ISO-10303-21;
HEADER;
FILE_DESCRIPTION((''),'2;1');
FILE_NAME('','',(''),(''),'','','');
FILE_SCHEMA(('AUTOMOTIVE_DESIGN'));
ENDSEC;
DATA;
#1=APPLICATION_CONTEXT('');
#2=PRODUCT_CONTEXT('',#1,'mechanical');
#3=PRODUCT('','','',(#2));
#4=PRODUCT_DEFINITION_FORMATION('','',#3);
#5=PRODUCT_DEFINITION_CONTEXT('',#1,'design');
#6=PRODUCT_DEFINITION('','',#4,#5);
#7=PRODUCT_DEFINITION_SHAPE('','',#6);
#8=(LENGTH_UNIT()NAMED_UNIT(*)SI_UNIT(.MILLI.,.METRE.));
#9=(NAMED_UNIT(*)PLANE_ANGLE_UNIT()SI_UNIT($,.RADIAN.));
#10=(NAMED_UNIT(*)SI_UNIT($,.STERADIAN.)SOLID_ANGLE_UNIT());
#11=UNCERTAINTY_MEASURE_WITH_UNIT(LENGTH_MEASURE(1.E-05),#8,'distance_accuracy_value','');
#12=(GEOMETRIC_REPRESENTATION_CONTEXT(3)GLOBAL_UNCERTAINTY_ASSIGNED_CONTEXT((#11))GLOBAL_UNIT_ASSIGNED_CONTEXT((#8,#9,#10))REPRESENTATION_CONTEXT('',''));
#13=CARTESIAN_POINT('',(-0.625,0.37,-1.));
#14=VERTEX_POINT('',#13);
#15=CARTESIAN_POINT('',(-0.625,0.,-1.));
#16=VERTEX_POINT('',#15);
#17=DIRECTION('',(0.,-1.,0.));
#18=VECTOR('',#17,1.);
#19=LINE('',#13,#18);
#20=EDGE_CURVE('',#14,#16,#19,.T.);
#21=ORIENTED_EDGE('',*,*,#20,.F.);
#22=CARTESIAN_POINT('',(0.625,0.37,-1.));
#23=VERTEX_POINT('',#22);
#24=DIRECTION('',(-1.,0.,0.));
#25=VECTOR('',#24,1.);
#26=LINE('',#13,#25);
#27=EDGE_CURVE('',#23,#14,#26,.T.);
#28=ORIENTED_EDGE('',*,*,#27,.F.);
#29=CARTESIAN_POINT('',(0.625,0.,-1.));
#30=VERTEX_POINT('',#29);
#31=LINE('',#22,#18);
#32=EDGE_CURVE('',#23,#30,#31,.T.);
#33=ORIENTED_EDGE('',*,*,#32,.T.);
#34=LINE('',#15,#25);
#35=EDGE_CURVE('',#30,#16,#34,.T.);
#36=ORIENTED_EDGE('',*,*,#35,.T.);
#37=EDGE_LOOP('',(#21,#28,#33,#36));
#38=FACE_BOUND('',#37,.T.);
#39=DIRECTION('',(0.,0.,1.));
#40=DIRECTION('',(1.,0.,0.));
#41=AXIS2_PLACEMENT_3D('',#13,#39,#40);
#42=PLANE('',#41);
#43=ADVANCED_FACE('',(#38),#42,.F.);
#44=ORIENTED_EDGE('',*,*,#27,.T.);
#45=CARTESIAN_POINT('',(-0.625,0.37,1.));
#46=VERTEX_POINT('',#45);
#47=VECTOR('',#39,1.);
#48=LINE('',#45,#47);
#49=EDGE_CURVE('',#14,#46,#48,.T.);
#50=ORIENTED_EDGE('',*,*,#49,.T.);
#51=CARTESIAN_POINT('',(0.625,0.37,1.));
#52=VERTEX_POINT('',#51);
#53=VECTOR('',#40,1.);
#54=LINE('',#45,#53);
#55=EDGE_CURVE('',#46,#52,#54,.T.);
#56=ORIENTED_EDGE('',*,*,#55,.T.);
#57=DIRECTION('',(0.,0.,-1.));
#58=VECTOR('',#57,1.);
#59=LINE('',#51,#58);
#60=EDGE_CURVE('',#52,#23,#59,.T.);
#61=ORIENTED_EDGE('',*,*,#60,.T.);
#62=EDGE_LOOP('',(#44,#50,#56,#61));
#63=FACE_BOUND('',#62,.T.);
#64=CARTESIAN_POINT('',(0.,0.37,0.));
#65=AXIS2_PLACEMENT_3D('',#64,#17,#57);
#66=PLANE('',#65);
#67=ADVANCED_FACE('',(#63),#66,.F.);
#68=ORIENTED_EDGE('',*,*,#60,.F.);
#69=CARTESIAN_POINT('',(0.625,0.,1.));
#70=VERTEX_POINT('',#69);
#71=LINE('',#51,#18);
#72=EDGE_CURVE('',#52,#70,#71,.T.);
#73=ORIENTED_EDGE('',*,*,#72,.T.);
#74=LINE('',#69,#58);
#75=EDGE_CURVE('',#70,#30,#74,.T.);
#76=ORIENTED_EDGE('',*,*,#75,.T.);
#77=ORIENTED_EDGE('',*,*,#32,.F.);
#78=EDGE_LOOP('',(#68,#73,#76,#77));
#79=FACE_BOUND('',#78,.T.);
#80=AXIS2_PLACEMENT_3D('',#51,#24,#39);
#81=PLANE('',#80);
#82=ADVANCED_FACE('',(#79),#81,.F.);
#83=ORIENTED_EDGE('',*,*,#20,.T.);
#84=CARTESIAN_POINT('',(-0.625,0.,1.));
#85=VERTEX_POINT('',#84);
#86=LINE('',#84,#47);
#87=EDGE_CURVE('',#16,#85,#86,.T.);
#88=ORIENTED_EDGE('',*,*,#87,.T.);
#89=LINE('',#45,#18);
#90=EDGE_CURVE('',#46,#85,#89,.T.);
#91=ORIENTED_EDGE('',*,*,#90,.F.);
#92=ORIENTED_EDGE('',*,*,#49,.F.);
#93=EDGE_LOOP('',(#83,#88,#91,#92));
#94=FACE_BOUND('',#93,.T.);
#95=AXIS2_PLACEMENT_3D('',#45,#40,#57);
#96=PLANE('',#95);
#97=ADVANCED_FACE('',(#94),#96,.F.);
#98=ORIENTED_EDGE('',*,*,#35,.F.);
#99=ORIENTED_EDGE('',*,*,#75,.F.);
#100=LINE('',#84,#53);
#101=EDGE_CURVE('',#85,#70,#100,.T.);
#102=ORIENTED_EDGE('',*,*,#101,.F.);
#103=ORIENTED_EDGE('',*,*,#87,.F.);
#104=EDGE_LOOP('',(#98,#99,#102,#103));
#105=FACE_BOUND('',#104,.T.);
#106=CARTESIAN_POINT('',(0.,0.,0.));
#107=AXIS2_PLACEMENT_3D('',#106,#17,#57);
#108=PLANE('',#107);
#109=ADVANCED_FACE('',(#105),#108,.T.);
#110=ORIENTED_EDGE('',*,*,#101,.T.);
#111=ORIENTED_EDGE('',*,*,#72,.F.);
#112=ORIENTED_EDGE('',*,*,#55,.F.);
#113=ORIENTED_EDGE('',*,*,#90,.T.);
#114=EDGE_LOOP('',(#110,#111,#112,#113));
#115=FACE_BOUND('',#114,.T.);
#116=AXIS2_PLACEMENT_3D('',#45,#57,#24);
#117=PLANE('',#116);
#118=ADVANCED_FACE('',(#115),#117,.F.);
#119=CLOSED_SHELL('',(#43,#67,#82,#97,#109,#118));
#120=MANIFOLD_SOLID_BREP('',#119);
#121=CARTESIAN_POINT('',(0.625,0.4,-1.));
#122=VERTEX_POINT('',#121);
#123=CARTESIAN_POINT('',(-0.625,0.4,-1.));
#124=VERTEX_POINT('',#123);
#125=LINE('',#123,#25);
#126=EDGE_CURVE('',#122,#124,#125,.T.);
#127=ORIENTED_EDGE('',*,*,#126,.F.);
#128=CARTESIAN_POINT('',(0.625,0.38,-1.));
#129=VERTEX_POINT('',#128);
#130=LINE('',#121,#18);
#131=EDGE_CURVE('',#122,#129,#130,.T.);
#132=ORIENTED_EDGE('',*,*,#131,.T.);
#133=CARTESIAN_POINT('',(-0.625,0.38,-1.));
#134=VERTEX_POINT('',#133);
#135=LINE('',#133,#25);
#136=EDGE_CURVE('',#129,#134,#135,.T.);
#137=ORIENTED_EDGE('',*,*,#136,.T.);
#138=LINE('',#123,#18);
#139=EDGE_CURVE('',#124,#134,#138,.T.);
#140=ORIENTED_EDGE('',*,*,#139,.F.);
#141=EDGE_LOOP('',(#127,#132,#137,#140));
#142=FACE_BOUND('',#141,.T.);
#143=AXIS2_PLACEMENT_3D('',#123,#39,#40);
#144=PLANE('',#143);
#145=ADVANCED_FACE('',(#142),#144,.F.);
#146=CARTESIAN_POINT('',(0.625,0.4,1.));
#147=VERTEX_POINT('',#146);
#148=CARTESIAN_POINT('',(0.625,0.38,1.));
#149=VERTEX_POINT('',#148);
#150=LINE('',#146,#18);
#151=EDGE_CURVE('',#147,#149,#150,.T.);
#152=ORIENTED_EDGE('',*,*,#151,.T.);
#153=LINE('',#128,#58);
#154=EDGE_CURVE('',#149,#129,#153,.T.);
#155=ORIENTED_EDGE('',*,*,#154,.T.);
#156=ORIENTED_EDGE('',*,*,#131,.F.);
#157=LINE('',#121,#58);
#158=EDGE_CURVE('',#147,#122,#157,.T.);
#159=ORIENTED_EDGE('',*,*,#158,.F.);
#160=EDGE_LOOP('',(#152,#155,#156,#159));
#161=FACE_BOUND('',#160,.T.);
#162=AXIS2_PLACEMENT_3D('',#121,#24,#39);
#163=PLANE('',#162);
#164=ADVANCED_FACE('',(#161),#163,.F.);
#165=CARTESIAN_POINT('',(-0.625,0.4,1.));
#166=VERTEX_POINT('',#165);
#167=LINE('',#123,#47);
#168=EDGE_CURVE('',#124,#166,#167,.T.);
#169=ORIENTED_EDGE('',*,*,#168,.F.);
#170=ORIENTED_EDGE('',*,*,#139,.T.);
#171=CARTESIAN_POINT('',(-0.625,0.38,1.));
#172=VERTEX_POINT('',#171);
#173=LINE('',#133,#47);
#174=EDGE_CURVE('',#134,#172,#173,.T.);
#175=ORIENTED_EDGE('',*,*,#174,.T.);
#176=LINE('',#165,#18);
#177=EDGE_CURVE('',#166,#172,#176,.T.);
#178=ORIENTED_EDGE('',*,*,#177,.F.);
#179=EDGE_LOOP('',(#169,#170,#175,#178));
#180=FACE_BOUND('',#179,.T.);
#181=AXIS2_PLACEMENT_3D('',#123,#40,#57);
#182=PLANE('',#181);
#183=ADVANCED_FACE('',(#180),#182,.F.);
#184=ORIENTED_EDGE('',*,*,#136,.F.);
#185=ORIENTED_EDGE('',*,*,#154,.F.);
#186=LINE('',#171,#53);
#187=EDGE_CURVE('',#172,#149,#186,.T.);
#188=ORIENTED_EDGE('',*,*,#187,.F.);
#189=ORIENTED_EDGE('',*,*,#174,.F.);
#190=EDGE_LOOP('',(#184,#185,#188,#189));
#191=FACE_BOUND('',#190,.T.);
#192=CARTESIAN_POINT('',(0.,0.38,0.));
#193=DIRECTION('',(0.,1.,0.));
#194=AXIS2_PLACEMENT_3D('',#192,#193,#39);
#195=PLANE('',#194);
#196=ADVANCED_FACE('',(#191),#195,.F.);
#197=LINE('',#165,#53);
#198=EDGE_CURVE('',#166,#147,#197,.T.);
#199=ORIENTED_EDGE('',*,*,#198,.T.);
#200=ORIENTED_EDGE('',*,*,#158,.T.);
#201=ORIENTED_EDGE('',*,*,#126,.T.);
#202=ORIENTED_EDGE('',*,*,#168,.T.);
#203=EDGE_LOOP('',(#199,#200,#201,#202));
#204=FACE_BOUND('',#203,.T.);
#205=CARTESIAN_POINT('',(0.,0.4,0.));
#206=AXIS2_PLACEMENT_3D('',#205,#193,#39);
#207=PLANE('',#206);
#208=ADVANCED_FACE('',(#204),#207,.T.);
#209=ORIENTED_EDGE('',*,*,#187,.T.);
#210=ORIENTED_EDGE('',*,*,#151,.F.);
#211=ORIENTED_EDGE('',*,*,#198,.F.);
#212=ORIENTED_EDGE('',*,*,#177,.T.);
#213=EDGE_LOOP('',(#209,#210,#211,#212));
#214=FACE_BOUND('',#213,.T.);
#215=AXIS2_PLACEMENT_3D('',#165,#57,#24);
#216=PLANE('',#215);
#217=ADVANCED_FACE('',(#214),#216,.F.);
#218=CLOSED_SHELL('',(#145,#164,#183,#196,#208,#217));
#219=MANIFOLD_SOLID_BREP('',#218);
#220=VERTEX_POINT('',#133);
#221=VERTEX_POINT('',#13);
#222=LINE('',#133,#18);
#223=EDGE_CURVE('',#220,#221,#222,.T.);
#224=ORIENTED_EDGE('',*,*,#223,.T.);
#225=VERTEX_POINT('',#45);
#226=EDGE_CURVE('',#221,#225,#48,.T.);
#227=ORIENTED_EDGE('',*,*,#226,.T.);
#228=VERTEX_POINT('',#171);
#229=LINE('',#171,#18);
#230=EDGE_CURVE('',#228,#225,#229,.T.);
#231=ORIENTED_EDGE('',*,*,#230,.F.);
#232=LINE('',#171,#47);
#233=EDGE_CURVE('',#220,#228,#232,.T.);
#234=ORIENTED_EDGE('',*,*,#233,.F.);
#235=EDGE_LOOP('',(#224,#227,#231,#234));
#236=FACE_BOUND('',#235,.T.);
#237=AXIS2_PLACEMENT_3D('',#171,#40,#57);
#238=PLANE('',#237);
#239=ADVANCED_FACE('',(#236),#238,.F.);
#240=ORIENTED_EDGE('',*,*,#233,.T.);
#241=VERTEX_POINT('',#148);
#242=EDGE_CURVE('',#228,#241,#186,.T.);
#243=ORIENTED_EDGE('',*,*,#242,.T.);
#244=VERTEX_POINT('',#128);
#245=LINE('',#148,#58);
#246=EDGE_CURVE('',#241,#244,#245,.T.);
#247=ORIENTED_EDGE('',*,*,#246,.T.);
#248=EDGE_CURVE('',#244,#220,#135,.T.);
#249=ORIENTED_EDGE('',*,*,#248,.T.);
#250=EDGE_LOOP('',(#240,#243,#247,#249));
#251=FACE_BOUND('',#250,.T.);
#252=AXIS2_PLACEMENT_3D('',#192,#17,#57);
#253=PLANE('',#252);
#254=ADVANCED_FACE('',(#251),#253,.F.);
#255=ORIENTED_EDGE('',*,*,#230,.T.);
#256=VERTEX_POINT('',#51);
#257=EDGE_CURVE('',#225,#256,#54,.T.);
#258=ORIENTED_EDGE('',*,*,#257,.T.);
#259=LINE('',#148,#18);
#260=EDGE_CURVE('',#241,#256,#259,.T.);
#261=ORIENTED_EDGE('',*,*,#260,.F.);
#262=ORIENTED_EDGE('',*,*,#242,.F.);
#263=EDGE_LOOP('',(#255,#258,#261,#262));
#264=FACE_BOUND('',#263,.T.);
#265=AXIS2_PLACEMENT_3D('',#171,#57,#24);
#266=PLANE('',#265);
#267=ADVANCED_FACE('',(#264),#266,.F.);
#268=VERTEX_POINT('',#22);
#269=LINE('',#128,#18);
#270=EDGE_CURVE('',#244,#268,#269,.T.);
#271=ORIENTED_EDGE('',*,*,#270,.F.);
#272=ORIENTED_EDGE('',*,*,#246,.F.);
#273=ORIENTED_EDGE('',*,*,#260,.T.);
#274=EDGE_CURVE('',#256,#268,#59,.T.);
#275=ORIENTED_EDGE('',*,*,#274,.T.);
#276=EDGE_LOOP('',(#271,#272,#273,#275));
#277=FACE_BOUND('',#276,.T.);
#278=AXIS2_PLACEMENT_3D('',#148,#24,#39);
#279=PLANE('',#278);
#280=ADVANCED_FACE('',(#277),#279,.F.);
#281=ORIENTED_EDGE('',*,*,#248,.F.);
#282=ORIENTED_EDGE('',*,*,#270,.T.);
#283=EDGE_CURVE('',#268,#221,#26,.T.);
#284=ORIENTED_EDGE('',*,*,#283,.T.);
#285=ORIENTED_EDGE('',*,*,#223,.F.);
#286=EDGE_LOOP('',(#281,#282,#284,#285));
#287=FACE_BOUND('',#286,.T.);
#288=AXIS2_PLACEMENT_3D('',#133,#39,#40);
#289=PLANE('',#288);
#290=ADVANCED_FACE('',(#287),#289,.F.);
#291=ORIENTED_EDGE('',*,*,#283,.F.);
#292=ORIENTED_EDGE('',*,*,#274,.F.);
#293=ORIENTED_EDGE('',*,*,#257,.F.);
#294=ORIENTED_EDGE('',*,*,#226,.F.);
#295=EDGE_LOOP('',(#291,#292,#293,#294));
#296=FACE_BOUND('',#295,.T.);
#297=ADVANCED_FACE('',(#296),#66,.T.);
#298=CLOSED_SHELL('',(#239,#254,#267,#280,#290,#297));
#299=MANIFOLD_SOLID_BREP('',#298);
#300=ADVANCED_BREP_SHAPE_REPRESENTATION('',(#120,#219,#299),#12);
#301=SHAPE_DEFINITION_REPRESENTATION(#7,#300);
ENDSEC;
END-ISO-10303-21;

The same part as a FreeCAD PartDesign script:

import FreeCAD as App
import Part
import Sketcher
Q = App.Units.Quantity

doc = App.newDocument("Part")
params = doc.addObject("Spreadsheet::Sheet", "Params")
for row, (alias, value) in enumerate([
    ("sketch1_height", "2 mm"),
    ("sketch1_width", "1.25 mm"),
    ("pad1_length", "0.37 mm"),
    ("sketch2_height", "2 mm"),
    ("sketch2_width", "1.25 mm"),
    ("pad2_length", "0.01 mm"),
    ("sketch3_height", "2 mm"),
    ("sketch3_width", "1.25 mm"),
    ("pad3_length", "0.02 mm"),
], start=1):
    params.set(f"A{row}", alias)
    params.set(f"B{row}", "=" + value)
    params.setAlias(f"B{row}", alias)

body = doc.addObject("PartDesign::Body", "Body")

# Sketch on XZ plane
sketch1 = body.newObject("Sketcher::SketchObject", "Sketch")
sketch1.AttachmentSupport = (doc.getObject("XZ_Plane"), [""])
sketch1.MapMode = "FlatFace"
sketch1.addGeometry([
    Part.LineSegment(App.Vector(-0.6, -1, 0), App.Vector(-0.6, 1, 0)),
    Part.LineSegment(App.Vector(-0.6, 1, 0), App.Vector(0.6, 1, 0)),
    Part.LineSegment(App.Vector(0.6, 1, 0), App.Vector(0.6, -1, 0)),
    Part.LineSegment(App.Vector(0.6, -1, 0), App.Vector(-0.6, -1, 0)),
], False)
sketch1.addConstraint([
    Sketcher.Constraint("Coincident", 0, 2, 1, 1),
    Sketcher.Constraint("Coincident", 1, 2, 2, 1),
    Sketcher.Constraint("Coincident", 2, 2, 3, 1),
    Sketcher.Constraint("Coincident", 3, 2, 0, 1),
    Sketcher.Constraint("Vertical", 0),
    Sketcher.Constraint("Horizontal", 1),
    Sketcher.Constraint("Vertical", 2),
    Sketcher.Constraint("Horizontal", 3),
    Sketcher.Constraint("Symmetric", 0, 2, 2, 2, -1, 1),
    Sketcher.Constraint("DistanceY", 0, 1, 0, 2, Q("2 mm")),
    Sketcher.Constraint("DistanceX", 1, 1, 1, 2, Q("1.25 mm")),
])
sketch1.setExpression("Constraints[9]", "Params.sketch1_height")
sketch1.setExpression("Constraints[10]", "Params.sketch1_width")
pad1 = body.newObject("PartDesign::Pad", "Pad")
pad1.Profile = sketch1
pad1.setExpression("Length", "Params.pad1_length")
pad1.Reversed = True
body2 = doc.addObject("PartDesign::Body", "Body001")

# Sketch on XZ plane
sketch2 = body2.newObject("Sketcher::SketchObject", "Sketch001")
sketch2.AttachmentSupport = (doc.getObject("XZ_Plane001"), [""])
sketch2.MapMode = "FlatFace"
sketch2.AttachmentOffset = App.Placement(App.Vector(0, 0, -0.37), App.Rotation())
sketch2.addGeometry([
    Part.LineSegment(App.Vector(-0.6, -1, 0), App.Vector(-0.6, 1, 0)),
    Part.LineSegment(App.Vector(-0.6, 1, 0), App.Vector(0.6, 1, 0)),
    Part.LineSegment(App.Vector(0.6, 1, 0), App.Vector(0.6, -1, 0)),
    Part.LineSegment(App.Vector(0.6, -1, 0), App.Vector(-0.6, -1, 0)),
], False)
sketch2.addConstraint([
    Sketcher.Constraint("Coincident", 0, 2, 1, 1),
    Sketcher.Constraint("Coincident", 1, 2, 2, 1),
    Sketcher.Constraint("Coincident", 2, 2, 3, 1),
    Sketcher.Constraint("Coincident", 3, 2, 0, 1),
    Sketcher.Constraint("Vertical", 0),
    Sketcher.Constraint("Horizontal", 1),
    Sketcher.Constraint("Vertical", 2),
    Sketcher.Constraint("Horizontal", 3),
    Sketcher.Constraint("Symmetric", 0, 2, 2, 2, -1, 1),
    Sketcher.Constraint("DistanceY", 0, 1, 0, 2, Q("2 mm")),
    Sketcher.Constraint("DistanceX", 1, 1, 1, 2, Q("1.25 mm")),
])
sketch2.setExpression("Constraints[9]", "Params.sketch2_height")
sketch2.setExpression("Constraints[10]", "Params.sketch2_width")
pad2 = body2.newObject("PartDesign::Pad", "Pad001")
pad2.Profile = sketch2
pad2.setExpression("Length", "Params.pad2_length")
pad2.Reversed = True
body3 = doc.addObject("PartDesign::Body", "Body002")

# Sketch on XZ plane
sketch3 = body3.newObject("Sketcher::SketchObject", "Sketch002")
sketch3.AttachmentSupport = (doc.getObject("XZ_Plane002"), [""])
sketch3.MapMode = "FlatFace"
sketch3.AttachmentOffset = App.Placement(App.Vector(0, 0, -0.38), App.Rotation())
sketch3.addGeometry([
    Part.LineSegment(App.Vector(-0.6, -1, 0), App.Vector(-0.6, 1, 0)),
    Part.LineSegment(App.Vector(-0.6, 1, 0), App.Vector(0.6, 1, 0)),
    Part.LineSegment(App.Vector(0.6, 1, 0), App.Vector(0.6, -1, 0)),
    Part.LineSegment(App.Vector(0.6, -1, 0), App.Vector(-0.6, -1, 0)),
], False)
sketch3.addConstraint([
    Sketcher.Constraint("Coincident", 0, 2, 1, 1),
    Sketcher.Constraint("Coincident", 1, 2, 2, 1),
    Sketcher.Constraint("Coincident", 2, 2, 3, 1),
    Sketcher.Constraint("Coincident", 3, 2, 0, 1),
    Sketcher.Constraint("Vertical", 0),
    Sketcher.Constraint("Horizontal", 1),
    Sketcher.Constraint("Vertical", 2),
    Sketcher.Constraint("Horizontal", 3),
    Sketcher.Constraint("Symmetric", 0, 2, 2, 2, -1, 1),
    Sketcher.Constraint("DistanceY", 0, 1, 0, 2, Q("2 mm")),
    Sketcher.Constraint("DistanceX", 1, 1, 1, 2, Q("1.25 mm")),
])
sketch3.setExpression("Constraints[9]", "Params.sketch3_height")
sketch3.setExpression("Constraints[10]", "Params.sketch3_width")
pad3 = body3.newObject("PartDesign::Pad", "Pad002")
pad3.Profile = sketch3
pad3.setExpression("Length", "Params.pad3_length")
pad3.Reversed = True

doc.recompute()
